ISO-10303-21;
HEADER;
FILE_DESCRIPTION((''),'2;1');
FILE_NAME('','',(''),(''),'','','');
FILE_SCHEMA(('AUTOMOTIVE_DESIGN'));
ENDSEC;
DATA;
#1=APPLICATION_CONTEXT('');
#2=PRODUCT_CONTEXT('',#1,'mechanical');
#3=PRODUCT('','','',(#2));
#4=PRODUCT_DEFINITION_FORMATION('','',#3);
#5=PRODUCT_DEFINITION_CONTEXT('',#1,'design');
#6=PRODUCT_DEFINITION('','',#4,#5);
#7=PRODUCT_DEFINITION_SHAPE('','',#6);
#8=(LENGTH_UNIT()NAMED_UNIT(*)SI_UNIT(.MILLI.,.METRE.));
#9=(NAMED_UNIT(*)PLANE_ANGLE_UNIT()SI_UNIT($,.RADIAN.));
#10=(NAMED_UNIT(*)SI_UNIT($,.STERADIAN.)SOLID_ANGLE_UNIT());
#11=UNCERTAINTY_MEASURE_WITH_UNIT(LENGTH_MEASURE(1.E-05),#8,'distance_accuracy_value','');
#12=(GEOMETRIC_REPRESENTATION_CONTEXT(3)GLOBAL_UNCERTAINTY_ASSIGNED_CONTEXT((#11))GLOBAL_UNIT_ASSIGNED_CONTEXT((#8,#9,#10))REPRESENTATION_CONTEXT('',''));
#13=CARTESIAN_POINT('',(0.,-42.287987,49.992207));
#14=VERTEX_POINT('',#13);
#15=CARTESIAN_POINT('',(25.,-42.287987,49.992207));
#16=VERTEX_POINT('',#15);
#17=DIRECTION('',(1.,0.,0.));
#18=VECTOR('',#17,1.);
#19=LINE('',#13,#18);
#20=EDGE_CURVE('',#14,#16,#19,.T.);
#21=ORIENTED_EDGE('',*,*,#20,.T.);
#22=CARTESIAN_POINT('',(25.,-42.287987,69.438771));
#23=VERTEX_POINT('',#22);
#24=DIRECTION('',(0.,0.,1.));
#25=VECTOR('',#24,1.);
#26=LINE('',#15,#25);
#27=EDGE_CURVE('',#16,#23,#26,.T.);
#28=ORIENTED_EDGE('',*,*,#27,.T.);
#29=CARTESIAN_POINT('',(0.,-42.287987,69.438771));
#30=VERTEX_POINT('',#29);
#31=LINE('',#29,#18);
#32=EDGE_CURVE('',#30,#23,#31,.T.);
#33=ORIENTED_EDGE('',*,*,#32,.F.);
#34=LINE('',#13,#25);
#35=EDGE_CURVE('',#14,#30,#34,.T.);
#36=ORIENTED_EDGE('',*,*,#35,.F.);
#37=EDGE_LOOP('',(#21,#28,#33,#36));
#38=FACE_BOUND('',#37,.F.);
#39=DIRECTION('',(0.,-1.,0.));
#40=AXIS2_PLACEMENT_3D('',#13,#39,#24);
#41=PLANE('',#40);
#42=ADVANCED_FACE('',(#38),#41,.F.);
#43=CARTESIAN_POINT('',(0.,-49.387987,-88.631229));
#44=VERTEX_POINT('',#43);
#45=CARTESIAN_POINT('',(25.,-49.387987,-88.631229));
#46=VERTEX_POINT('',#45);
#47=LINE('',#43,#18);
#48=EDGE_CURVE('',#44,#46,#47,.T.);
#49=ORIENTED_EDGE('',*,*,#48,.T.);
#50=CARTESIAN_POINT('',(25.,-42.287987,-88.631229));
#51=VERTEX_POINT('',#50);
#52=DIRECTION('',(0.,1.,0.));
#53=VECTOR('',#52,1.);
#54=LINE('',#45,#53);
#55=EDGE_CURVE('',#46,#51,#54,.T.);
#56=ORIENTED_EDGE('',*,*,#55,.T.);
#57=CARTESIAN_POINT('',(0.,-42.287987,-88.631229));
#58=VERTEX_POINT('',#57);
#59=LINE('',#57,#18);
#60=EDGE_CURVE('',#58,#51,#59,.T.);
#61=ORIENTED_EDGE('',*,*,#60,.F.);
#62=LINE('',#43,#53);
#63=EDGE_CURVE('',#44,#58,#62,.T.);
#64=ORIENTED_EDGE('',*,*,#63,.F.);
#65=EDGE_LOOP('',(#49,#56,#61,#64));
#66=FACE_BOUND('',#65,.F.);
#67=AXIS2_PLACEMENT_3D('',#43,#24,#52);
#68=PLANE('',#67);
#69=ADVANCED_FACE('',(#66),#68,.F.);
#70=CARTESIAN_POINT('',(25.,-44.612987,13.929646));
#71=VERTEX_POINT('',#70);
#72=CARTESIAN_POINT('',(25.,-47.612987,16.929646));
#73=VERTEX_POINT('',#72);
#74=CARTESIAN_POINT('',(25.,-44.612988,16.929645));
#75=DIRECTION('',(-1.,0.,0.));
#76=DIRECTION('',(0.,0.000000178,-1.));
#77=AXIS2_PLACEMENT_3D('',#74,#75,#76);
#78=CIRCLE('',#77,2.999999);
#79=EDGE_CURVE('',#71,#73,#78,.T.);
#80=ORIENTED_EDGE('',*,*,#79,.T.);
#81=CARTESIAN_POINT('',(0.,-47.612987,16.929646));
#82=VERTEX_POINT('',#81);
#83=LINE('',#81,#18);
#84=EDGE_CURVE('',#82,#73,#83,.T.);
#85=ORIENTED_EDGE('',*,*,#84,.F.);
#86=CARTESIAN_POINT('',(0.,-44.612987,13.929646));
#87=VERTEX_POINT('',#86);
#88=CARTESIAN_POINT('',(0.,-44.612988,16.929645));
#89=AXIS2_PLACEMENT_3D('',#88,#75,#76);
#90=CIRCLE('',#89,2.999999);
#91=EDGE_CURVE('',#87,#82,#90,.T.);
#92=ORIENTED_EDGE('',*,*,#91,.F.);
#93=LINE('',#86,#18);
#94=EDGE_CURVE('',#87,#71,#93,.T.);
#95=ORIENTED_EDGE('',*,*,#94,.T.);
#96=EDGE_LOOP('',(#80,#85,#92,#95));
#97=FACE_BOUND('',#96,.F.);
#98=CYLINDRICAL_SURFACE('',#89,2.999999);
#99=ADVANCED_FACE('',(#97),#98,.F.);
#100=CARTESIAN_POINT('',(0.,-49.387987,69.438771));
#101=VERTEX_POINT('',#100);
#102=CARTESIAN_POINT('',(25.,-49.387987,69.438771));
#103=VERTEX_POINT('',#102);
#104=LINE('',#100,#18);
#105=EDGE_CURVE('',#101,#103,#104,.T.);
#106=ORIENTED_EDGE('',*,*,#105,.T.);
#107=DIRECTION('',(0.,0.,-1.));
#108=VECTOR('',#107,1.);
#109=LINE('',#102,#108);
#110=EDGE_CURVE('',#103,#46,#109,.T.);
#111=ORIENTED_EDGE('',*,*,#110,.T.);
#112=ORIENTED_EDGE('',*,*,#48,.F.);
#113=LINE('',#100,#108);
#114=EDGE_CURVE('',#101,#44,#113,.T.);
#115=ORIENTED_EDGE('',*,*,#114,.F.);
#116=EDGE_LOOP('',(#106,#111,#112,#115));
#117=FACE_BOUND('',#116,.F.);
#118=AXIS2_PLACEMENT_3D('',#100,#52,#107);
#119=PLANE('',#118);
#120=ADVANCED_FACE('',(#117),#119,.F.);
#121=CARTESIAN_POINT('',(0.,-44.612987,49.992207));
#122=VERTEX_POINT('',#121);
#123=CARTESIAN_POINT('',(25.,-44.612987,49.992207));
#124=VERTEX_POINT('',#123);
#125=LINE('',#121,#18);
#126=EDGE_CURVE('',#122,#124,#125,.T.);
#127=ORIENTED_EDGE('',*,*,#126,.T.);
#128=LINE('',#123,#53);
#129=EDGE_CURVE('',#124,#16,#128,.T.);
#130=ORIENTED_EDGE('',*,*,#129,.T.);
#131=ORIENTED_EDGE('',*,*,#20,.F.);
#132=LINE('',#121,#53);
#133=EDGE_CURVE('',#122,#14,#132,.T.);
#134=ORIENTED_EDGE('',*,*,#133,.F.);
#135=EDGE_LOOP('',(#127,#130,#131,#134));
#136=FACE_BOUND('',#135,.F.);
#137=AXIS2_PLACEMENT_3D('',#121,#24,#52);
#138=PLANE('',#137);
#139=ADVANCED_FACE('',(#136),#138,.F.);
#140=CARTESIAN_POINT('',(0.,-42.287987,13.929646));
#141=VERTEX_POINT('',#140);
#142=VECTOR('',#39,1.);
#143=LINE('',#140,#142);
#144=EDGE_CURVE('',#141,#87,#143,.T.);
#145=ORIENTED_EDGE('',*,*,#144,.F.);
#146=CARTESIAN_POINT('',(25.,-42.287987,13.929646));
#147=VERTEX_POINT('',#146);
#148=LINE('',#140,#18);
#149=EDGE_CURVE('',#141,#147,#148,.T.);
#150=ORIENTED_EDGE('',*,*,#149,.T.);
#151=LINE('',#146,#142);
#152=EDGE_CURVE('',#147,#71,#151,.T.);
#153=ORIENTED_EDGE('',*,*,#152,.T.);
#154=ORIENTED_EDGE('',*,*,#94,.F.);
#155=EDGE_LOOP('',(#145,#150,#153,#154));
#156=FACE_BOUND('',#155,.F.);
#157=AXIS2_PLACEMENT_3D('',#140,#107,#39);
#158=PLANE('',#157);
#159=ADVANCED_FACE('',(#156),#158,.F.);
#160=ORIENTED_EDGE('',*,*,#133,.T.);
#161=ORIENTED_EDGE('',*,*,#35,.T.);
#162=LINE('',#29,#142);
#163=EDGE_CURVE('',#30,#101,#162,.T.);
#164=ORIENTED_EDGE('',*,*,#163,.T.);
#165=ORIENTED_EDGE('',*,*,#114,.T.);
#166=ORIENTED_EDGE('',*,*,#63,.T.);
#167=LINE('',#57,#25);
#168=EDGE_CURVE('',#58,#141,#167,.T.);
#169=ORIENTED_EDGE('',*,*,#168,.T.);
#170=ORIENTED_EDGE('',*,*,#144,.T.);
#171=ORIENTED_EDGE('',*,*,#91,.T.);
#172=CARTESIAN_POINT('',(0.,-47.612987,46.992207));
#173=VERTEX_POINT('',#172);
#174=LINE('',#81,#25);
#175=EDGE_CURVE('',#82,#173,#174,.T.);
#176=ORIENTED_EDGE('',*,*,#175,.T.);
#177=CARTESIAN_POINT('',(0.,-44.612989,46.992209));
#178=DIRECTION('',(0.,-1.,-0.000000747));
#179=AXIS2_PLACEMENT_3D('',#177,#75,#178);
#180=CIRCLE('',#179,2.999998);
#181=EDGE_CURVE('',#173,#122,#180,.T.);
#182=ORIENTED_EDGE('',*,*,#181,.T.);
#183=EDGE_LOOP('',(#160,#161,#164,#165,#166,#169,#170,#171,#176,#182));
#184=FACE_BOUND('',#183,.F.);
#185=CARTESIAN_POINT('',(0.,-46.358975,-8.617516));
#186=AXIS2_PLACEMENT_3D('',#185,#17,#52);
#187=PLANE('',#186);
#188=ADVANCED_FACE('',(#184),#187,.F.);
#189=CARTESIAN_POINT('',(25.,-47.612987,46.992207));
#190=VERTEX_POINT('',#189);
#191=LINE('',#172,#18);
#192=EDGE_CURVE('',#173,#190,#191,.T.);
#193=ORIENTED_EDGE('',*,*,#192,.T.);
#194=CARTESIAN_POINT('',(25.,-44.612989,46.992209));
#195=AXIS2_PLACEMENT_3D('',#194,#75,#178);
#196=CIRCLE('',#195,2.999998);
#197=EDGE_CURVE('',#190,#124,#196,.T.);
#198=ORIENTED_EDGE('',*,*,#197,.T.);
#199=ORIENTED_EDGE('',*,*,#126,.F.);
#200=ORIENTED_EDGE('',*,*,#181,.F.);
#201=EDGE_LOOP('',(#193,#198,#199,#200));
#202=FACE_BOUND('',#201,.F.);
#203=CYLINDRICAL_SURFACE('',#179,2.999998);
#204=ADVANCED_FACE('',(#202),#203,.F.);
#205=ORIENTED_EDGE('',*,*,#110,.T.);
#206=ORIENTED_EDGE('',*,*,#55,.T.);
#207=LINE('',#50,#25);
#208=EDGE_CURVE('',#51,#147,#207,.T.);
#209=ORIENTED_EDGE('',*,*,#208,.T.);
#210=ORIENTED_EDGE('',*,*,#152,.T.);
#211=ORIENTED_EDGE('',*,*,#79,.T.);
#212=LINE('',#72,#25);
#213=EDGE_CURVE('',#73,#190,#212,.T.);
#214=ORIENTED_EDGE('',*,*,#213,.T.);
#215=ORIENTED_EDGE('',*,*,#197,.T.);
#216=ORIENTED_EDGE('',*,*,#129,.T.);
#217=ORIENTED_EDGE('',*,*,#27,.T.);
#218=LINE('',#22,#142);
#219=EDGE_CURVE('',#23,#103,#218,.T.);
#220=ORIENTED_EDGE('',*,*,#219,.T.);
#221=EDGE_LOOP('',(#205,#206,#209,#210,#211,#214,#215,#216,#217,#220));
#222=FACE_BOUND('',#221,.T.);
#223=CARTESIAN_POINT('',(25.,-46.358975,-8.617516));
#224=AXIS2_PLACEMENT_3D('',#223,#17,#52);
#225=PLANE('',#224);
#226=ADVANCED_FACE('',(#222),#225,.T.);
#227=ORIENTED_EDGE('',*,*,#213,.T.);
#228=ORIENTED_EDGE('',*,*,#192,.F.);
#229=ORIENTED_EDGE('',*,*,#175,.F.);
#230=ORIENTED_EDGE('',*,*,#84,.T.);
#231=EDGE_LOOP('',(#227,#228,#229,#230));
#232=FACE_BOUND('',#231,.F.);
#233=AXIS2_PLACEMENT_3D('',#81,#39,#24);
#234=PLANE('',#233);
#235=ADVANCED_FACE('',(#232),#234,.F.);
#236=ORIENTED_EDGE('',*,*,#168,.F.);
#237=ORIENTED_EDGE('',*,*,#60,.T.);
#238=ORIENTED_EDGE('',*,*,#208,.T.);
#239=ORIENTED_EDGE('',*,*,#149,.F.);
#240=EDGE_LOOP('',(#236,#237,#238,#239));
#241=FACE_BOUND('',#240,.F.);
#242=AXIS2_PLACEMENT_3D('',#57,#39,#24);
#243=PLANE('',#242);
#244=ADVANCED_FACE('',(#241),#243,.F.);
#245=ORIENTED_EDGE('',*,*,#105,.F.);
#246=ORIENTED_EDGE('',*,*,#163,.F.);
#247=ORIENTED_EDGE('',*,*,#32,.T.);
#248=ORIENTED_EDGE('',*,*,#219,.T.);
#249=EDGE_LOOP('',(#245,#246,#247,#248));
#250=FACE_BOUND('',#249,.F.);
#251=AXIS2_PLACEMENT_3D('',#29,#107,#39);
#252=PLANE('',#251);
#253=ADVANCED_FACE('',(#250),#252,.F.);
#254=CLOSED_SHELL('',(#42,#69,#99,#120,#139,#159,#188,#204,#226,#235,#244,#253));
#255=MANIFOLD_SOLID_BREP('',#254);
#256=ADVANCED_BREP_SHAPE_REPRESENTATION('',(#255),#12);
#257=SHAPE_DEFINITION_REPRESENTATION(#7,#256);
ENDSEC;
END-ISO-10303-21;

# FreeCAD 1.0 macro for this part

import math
import FreeCAD as App
import Part
import Sketcher

doc = App.newDocument("Part")
body = doc.addObject("PartDesign::Body", "Body")

sketch1 = doc.addObject("Sketcher::SketchObject", "Sketch")
body.addObject(sketch1)
sketch1.AttachmentSupport = (doc.YZ_Plane, [""])
sketch1.MapMode = "FlatFace"
sketch1.addGeometry([
    Part.LineSegment(App.Vector(-42.3, 69.4, 0), App.Vector(-49.4, 69.4, 0)),
    Part.LineSegment(App.Vector(-49.4, 69.4, 0), App.Vector(-49.4, -88.6, 0)),
    Part.LineSegment(App.Vector(-49.4, -88.6, 0), App.Vector(-42.3, -88.6, 0)),
    Part.LineSegment(App.Vector(-42.3, -88.6, 0), App.Vector(-42.3, 13.9, 0)),
    Part.LineSegment(App.Vector(-42.3, 13.9, 0), App.Vector(-44.6, 13.9, 0)),
    Part.ArcOfCircle(Part.Circle(App.Vector(-44.6, 16.9, 0), App.Vector(0, 0, 1), 3), math.radians(180), math.radians(270)),
    Part.LineSegment(App.Vector(-47.6, 16.9, 0), App.Vector(-47.6, 47, 0)),
    Part.ArcOfCircle(Part.Circle(App.Vector(-44.6, 47, 0), App.Vector(0, 0, 1), 3), math.radians(90), math.radians(180)),
    Part.LineSegment(App.Vector(-44.6, 50, 0), App.Vector(-42.3, 50, 0)),
    Part.LineSegment(App.Vector(-42.3, 50, 0), App.Vector(-42.3, 69.4, 0)),
], False)
sketch1.addConstraint([
    Sketcher.Constraint("Coincident", 0, 2, 1, 1),
    Sketcher.Constraint("Coincident", 1, 2, 2, 1),
    Sketcher.Constraint("Coincident", 2, 2, 3, 1),
    Sketcher.Constraint("Coincident", 3, 2, 4, 1),
    Sketcher.Constraint("Tangent", 4, 2, 5, 2),
    Sketcher.Constraint("Tangent", 5, 1, 6, 1),
    Sketcher.Constraint("Tangent", 6, 2, 7, 2),
    Sketcher.Constraint("Tangent", 7, 1, 8, 1),
    Sketcher.Constraint("Coincident", 8, 2, 9, 1),
    Sketcher.Constraint("Coincident", 9, 2, 0, 1),
    Sketcher.Constraint("Horizontal", 0),
    Sketcher.Constraint("Vertical", 1),
    Sketcher.Constraint("Horizontal", 2),
    Sketcher.Constraint("Vertical", 3),
    Sketcher.Constraint("Horizontal", 4),
    Sketcher.Constraint("Vertical", 6),
    Sketcher.Constraint("Horizontal", 8),
    Sketcher.Constraint("Vertical", 9),
    Sketcher.Constraint("Equal", 5, 7),
    Sketcher.Constraint("Vertical", 3, 2, 8, 2),
    Sketcher.Constraint("Radius", 5, 2.999999),
    Sketcher.Constraint("DistanceX", 0, 2, 0, 1, 7.1),
    Sketcher.Constraint("DistanceY", 1, 2, 1, 1, 158.07),
    Sketcher.Constraint("DistanceX", 4, 2, 4, 1, 2.325),
    Sketcher.Constraint("DistanceY", 6, 1, 6, 2, 30.062561),
    Sketcher.Constraint("DistanceY", 3, 1, 3, 2, 102.560875),
    Sketcher.Constraint("DistanceX", 7, 3, -1, 1, 44.612989),
    Sketcher.Constraint("DistanceY", -1, 1, 7, 3, 46.992209),
])
pad1 = doc.addObject("PartDesign::Pad", "Pad")
body.addObject(pad1)
pad1.Profile = sketch1
pad1.Length = 25

doc.recompute()
